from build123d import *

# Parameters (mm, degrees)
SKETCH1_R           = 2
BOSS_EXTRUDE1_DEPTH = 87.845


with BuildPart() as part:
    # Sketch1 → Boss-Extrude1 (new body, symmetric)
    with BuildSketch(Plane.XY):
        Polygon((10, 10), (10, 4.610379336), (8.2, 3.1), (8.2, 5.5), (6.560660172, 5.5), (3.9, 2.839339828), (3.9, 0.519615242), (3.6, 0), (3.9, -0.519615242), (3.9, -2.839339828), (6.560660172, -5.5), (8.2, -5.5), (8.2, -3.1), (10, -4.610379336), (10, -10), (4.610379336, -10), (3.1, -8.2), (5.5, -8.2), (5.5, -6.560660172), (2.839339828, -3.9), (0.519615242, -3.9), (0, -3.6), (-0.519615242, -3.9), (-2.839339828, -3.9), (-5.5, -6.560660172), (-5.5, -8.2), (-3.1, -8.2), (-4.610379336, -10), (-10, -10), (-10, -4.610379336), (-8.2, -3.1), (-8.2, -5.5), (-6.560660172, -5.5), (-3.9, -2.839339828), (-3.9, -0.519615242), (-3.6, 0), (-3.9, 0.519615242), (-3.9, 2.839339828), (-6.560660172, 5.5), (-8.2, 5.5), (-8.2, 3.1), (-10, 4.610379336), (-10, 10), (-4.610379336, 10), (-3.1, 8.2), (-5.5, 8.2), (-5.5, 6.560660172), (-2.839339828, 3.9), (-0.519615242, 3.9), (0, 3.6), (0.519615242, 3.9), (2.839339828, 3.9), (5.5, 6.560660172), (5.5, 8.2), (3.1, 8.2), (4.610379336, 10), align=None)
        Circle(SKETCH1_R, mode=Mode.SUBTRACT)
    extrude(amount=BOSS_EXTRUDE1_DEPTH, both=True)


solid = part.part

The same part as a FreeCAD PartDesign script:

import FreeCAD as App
import Part
import Sketcher
from FreeCAD import Vector
Q = App.Units.Quantity


def add_polygon(sketch, points):
    """Adds a closed chain of lines whose ends are joined by coincident constraints."""
    first, n = sketch.GeometryCount, len(points)
    for a, b in zip(points, points[1:] + points[:1]):
        sketch.addGeometry(Part.LineSegment(App.Vector(*a, 0), App.Vector(*b, 0)), False)
    for i in range(n):
        sketch.addConstraint(Sketcher.Constraint("Coincident", first + i, 2, first + (i + 1) % n, 1))

doc = App.newDocument("Part")
body = doc.addObject("PartDesign::Body", "Body")

sketch1 = body.newObject("Sketcher::SketchObject", "Sketch")
sketch1.AttachmentSupport = (doc.getObject("XY_Plane"), [""])
sketch1.MapMode = "FlatFace"
add_polygon(sketch1, [(10, 4.6), (10, 10), (4.6, 10), (3.1, 8.2), (5.5, 8.2), (5.5, 6.6), (2.8, 3.9), (0.5, 3.9), (0, 3.6), (-0.5, 3.9), (-2.8, 3.9), (-5.5, 6.6), (-5.5, 8.2), (-3.1, 8.2), (-4.6, 10), (-10, 10), (-10, 4.6), (-8.2, 3.1), (-8.2, 5.5), (-6.6, 5.5), (-3.9, 2.8), (-3.9, 0.5), (-3.6, 0), (-3.9, -0.5), (-3.9, -2.8), (-6.6, -5.5), (-8.2, -5.5), (-8.2, -3.1), (-10, -4.6), (-10, -10), (-4.6, -10), (-3.1, -8.2), (-5.5, -8.2), (-5.5, -6.6), (-2.8, -3.9), (-0.5, -3.9), (0, -3.6), (0.5, -3.9), (2.8, -3.9), (5.5, -6.6), (5.5, -8.2), (3.1, -8.2), (4.6, -10), (10, -10), (10, -4.6), (8.2, -3.1), (8.2, -5.5), (6.6, -5.5), (3.9, -2.8), (3.9, -0.5), (3.6, 0), (3.9, 0.5), (3.9, 2.8), (6.6, 5.5), (8.2, 5.5), (8.2, 3.1)])
sketch1.addGeometry(Part.Circle(Vector(0, 0, 0), Vector(0, 0, 1), 2), False)
sketch1.addConstraint(Sketcher.Constraint("Vertical", 0))
sketch1.addConstraint(Sketcher.Constraint("Horizontal", 1))
sketch1.addConstraint(Sketcher.Constraint("Horizontal", 3))
sketch1.addConstraint(Sketcher.Constraint("Vertical", 4))
sketch1.addConstraint(Sketcher.Constraint("Horizontal", 6))
sketch1.addConstraint(Sketcher.Constraint("Horizontal", 9))
sketch1.addConstraint(Sketcher.Constraint("Vertical", 11))
sketch1.addConstraint(Sketcher.Constraint("Horizontal", 12))
sketch1.addConstraint(Sketcher.Constraint("Horizontal", 14))
sketch1.addConstraint(Sketcher.Constraint("Vertical", 15))
sketch1.addConstraint(Sketcher.Constraint("Vertical", 17))
sketch1.addConstraint(Sketcher.Constraint("Horizontal", 18))
sketch1.addConstraint(Sketcher.Constraint("Vertical", 20))
sketch1.addConstraint(Sketcher.Constraint("Vertical", 23))
sketch1.addConstraint(Sketcher.Constraint("Horizontal", 25))
sketch1.addConstraint(Sketcher.Constraint("Vertical", 26))
sketch1.addConstraint(Sketcher.Constraint("Vertical", 28))
sketch1.addConstraint(Sketcher.Constraint("Horizontal", 29))
sketch1.addConstraint(Sketcher.Constraint("Horizontal", 31))
sketch1.addConstraint(Sketcher.Constraint("Vertical", 32))
sketch1.addConstraint(Sketcher.Constraint("Horizontal", 34))
sketch1.addConstraint(Sketcher.Constraint("Horizontal", 37))
sketch1.addConstraint(Sketcher.Constraint("Vertical", 39))
sketch1.addConstraint(Sketcher.Constraint("Horizontal", 40))
sketch1.addConstraint(Sketcher.Constraint("Horizontal", 42))
sketch1.addConstraint(Sketcher.Constraint("Vertical", 43))
sketch1.addConstraint(Sketcher.Constraint("Vertical", 45))
sketch1.addConstraint(Sketcher.Constraint("Horizontal", 46))
sketch1.addConstraint(Sketcher.Constraint("Vertical", 48))
sketch1.addConstraint(Sketcher.Constraint("Vertical", 51))
sketch1.addConstraint(Sketcher.Constraint("Horizontal", 53))
sketch1.addConstraint(Sketcher.Constraint("Vertical", 54))
sketch1.addConstraint(Sketcher.Constraint("Coincident", 56, 3, -1, 1))
sketch1.addConstraint(Sketcher.Constraint("Symmetric", 0, 2, 28, 2, -1, 1))
sketch1.addConstraint(Sketcher.Constraint("Symmetric", 2, 2, 30, 2, -1, 1))
sketch1.addConstraint(Sketcher.Constraint("Symmetric", 4, 2, 32, 2, -1, 1))
sketch1.addConstraint(Sketcher.Constraint("Symmetric", 5, 2, 33, 2, -1, 1))
sketch1.addConstraint(Sketcher.Constraint("Symmetric", 7, 2, 35, 2, -1, 1))
sketch1.addConstraint(Sketcher.Constraint("Symmetric", 8, 2, 36, 2, -1, 1))
sketch1.addConstraint(Sketcher.Constraint("Symmetric", 10, 2, 38, 2, -1, 1))
sketch1.addConstraint(Sketcher.Constraint("Symmetric", 12, 2, 40, 2, -1, 1))
sketch1.addConstraint(Sketcher.Constraint("Symmetric", 13, 2, 41, 2, -1, 1))
sketch1.addConstraint(Sketcher.Constraint("Symmetric", 15, 2, 43, 2, -1, 1))
sketch1.addConstraint(Sketcher.Constraint("Symmetric", 16, 2, 44, 2, -1, 1))
sketch1.addConstraint(Sketcher.Constraint("Symmetric", 18, 2, 46, 2, -1, 1))
sketch1.addConstraint(Sketcher.Constraint("Symmetric", 19, 2, 47, 2, -1, 1))
sketch1.addConstraint(Sketcher.Constraint("Symmetric", 21, 2, 49, 2, -1, 1))
sketch1.addConstraint(Sketcher.Constraint("Symmetric", 22, 2, 50, 2, -1, 1))
sketch1.addConstraint(Sketcher.Constraint("Symmetric", 24, 2, 52, 2, -1, 1))
sketch1.addConstraint(Sketcher.Constraint("Symmetric", 26, 2, 54, 2, -1, 1))
sketch1.addConstraint(Sketcher.Constraint("Symmetric", 6, 2, 8, 2, -2))
sketch1.addConstraint(Sketcher.Constraint("Symmetric", 4, 2, 10, 2, -2))
sketch1.addConstraint(Sketcher.Constraint("Symmetric", 2, 2, 12, 2, -2))
sketch1.addConstraint(Sketcher.Constraint("Symmetric", 1, 2, 13, 2, -2))
sketch1.addConstraint(Sketcher.Constraint("Symmetric", 27, 2, 43, 2, -2))
sketch1.addConstraint(Sketcher.Constraint("Symmetric", 26, 2, 44, 2, -2))
sketch1.addConstraint(Sketcher.Constraint("Symmetric", 24, 2, 46, 2, -2))
sketch1.addConstraint(Sketcher.Constraint("Symmetric", 23, 2, 47, 2, -2))
sketch1.addConstraint(Sketcher.Constraint("PointOnObject", 7, 2, -2))
sketch1.addConstraint(Sketcher.Constraint("PointOnObject", 21, 2, -1))
sketch1.addConstraint(Sketcher.Constraint("Perpendicular", 5, 10))
sketch1.addConstraint(Sketcher.Constraint("Perpendicular", 2, 16))
sketch1.addConstraint(Sketcher.Constraint("Parallel", 10, 19))
sketch1.addConstraint(Sketcher.Constraint("Perpendicular", 7, 21))
sketch1.addConstraint(Sketcher.Constraint("Perpendicular", 8, 22))
sketch1.addConstraint(Sketcher.Constraint("Perpendicular", 19, 24))
sketch1.addConstraint(Sketcher.Constraint("Perpendicular", 16, 30))
sketch1.addConstraint(Sketcher.Constraint("Perpendicular", 21, 35))
sketch1.addConstraint(Sketcher.Constraint("Perpendicular", 33, 38))
sketch1.addConstraint(Sketcher.Constraint("Perpendicular", 35, 49))
sketch1.addConstraint(Sketcher.Constraint("Perpendicular", 47, 52))
sketch1.addConstraint(Sketcher.Constraint("Perpendicular", 41, 55))
sketch1.addConstraint(Sketcher.Constraint("Equal", 42, 0))
sketch1.addConstraint(Sketcher.Constraint("Equal", 53, 4))
sketch1.addConstraint(Sketcher.Constraint("Equal", 40, 17))
sketch1.addConstraint(Sketcher.Constraint("Equal", 37, 20))
sketch1.addConstraint(Sketcher.Constraint("Equal", 13, 16))
sketch1.addConstraint(Sketcher.Constraint("Equal", 10, 19))
sketch1.addConstraint(Sketcher.Constraint("Equal", 8, 21))
sketch1.addConstraint(Sketcher.Constraint("Diameter", 56, 4.0))
sketch1.addConstraint(Sketcher.Constraint("Angle", 2, Q("-130 deg")))
sketch1.addConstraint(Sketcher.Constraint("Angle", 7, Q("-150 deg")))
sketch1.addConstraint(Sketcher.Constraint("DistanceX", 3, 1, 3, 2, 2.4))
sketch1.addConstraint(Sketcher.Constraint("DistanceX", -1, 1, 0, 2, 10.0))
sketch1.addConstraint(Sketcher.Constraint("Distance", 7, 0.6))
sketch1.addConstraint(Sketcher.Constraint("DistanceX", -1, 1, 2, 2, 3.1))
sketch1.addConstraint(Sketcher.Constraint("DistanceY", -1, 1, 2, 2, 8.2))
sketch1.addConstraint(Sketcher.Constraint("DistanceY", -1, 1, 5, 2, 3.9))
sketch1.addConstraint(Sketcher.Constraint("DistanceX", 18, 1, 18, 2, 1.63934))
pad1 = body.newObject("PartDesign::Pad", "Pad")
pad1.Profile = sketch1
pad1.Length = 175.69
pad1.Midplane = True

doc.recompute()
